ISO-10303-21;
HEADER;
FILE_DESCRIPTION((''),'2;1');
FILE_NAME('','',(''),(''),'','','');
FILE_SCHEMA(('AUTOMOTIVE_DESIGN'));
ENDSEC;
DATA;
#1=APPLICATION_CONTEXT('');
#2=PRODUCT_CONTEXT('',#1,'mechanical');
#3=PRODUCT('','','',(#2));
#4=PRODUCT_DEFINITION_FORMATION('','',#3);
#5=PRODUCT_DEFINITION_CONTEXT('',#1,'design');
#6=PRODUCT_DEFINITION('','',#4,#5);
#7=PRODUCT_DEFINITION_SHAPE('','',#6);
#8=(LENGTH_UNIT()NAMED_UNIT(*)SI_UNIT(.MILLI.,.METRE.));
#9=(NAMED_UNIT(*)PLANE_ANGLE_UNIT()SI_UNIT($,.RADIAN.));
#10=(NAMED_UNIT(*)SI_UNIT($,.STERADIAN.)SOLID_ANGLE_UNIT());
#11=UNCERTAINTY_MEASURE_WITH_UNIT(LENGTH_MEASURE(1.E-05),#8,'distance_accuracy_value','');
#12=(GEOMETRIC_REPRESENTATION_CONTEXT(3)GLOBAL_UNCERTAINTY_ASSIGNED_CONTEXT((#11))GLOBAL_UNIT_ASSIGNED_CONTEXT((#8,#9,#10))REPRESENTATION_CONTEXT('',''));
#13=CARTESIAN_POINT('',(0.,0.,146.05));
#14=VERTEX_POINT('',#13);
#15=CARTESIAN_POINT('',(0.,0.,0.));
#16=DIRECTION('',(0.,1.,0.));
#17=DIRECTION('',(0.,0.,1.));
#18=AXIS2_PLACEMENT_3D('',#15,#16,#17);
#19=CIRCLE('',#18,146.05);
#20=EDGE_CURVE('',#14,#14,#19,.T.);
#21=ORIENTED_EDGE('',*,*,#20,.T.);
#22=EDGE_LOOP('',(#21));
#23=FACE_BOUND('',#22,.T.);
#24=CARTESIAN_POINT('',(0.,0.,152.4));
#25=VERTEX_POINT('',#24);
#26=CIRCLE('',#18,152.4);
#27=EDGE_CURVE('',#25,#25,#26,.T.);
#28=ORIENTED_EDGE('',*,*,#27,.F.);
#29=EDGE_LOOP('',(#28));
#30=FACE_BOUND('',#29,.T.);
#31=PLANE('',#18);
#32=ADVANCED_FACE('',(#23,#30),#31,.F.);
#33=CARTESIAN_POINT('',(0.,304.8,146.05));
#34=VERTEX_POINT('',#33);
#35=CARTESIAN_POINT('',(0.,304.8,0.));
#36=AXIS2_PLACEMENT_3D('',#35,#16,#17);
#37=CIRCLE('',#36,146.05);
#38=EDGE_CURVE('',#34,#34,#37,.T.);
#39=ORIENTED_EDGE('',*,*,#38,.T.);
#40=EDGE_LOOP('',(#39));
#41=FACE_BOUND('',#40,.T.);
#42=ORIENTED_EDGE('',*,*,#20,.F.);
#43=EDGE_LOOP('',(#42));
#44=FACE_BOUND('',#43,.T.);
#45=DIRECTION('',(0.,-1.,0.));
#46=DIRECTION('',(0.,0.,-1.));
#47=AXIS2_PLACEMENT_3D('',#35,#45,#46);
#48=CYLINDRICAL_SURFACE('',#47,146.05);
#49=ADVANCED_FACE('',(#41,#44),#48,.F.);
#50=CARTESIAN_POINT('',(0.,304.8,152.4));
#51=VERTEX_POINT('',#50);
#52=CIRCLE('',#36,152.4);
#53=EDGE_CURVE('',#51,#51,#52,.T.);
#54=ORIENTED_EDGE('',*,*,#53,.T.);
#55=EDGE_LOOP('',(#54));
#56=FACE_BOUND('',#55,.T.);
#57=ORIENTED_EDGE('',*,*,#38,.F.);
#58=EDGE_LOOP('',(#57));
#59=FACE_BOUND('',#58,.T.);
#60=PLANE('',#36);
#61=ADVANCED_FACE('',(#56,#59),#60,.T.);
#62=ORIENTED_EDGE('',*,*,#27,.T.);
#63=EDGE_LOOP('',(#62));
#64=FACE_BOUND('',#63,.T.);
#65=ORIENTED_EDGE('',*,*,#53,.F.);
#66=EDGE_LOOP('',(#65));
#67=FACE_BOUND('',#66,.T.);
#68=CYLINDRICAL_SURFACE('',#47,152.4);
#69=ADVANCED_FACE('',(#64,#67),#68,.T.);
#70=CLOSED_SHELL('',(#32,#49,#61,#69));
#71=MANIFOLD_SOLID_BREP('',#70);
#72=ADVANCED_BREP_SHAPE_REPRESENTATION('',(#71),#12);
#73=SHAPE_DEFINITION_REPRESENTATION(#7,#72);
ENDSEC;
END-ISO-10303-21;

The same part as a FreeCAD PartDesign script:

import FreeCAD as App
import Part
import Sketcher
from FreeCAD import Vector
Q = App.Units.Quantity

doc = App.newDocument("Part")
body = doc.addObject("PartDesign::Body", "Body")

sketch1 = body.newObject("Sketcher::SketchObject", "Sketch")
sketch1.AttachmentSupport = (doc.getObject("XZ_Plane"), [""])
sketch1.MapMode = "FlatFace"
sketch1.addGeometry(Part.Circle(Vector(0, 0, 0), Vector(0, 0, 1), 152), False)
sketch1.addGeometry(Part.Circle(Vector(0, 0, 0), Vector(0, 0, 1), 146), False)
sketch1.addConstraint(Sketcher.Constraint("Coincident", 0, 3, -1, 1))
sketch1.addConstraint(Sketcher.Constraint("Coincident", 1, 3, -1, 1))
sketch1.addConstraint(Sketcher.Constraint("Diameter", 0, Q("12 in")))
sketch1.addConstraint(Sketcher.Constraint("Diameter", 1, Q("11.5 in")))
pad1 = body.newObject("PartDesign::Pad", "Pad")
pad1.Profile = sketch1
pad1.Length = Q("12 in")
pad1.Reversed = True

doc.recompute()
